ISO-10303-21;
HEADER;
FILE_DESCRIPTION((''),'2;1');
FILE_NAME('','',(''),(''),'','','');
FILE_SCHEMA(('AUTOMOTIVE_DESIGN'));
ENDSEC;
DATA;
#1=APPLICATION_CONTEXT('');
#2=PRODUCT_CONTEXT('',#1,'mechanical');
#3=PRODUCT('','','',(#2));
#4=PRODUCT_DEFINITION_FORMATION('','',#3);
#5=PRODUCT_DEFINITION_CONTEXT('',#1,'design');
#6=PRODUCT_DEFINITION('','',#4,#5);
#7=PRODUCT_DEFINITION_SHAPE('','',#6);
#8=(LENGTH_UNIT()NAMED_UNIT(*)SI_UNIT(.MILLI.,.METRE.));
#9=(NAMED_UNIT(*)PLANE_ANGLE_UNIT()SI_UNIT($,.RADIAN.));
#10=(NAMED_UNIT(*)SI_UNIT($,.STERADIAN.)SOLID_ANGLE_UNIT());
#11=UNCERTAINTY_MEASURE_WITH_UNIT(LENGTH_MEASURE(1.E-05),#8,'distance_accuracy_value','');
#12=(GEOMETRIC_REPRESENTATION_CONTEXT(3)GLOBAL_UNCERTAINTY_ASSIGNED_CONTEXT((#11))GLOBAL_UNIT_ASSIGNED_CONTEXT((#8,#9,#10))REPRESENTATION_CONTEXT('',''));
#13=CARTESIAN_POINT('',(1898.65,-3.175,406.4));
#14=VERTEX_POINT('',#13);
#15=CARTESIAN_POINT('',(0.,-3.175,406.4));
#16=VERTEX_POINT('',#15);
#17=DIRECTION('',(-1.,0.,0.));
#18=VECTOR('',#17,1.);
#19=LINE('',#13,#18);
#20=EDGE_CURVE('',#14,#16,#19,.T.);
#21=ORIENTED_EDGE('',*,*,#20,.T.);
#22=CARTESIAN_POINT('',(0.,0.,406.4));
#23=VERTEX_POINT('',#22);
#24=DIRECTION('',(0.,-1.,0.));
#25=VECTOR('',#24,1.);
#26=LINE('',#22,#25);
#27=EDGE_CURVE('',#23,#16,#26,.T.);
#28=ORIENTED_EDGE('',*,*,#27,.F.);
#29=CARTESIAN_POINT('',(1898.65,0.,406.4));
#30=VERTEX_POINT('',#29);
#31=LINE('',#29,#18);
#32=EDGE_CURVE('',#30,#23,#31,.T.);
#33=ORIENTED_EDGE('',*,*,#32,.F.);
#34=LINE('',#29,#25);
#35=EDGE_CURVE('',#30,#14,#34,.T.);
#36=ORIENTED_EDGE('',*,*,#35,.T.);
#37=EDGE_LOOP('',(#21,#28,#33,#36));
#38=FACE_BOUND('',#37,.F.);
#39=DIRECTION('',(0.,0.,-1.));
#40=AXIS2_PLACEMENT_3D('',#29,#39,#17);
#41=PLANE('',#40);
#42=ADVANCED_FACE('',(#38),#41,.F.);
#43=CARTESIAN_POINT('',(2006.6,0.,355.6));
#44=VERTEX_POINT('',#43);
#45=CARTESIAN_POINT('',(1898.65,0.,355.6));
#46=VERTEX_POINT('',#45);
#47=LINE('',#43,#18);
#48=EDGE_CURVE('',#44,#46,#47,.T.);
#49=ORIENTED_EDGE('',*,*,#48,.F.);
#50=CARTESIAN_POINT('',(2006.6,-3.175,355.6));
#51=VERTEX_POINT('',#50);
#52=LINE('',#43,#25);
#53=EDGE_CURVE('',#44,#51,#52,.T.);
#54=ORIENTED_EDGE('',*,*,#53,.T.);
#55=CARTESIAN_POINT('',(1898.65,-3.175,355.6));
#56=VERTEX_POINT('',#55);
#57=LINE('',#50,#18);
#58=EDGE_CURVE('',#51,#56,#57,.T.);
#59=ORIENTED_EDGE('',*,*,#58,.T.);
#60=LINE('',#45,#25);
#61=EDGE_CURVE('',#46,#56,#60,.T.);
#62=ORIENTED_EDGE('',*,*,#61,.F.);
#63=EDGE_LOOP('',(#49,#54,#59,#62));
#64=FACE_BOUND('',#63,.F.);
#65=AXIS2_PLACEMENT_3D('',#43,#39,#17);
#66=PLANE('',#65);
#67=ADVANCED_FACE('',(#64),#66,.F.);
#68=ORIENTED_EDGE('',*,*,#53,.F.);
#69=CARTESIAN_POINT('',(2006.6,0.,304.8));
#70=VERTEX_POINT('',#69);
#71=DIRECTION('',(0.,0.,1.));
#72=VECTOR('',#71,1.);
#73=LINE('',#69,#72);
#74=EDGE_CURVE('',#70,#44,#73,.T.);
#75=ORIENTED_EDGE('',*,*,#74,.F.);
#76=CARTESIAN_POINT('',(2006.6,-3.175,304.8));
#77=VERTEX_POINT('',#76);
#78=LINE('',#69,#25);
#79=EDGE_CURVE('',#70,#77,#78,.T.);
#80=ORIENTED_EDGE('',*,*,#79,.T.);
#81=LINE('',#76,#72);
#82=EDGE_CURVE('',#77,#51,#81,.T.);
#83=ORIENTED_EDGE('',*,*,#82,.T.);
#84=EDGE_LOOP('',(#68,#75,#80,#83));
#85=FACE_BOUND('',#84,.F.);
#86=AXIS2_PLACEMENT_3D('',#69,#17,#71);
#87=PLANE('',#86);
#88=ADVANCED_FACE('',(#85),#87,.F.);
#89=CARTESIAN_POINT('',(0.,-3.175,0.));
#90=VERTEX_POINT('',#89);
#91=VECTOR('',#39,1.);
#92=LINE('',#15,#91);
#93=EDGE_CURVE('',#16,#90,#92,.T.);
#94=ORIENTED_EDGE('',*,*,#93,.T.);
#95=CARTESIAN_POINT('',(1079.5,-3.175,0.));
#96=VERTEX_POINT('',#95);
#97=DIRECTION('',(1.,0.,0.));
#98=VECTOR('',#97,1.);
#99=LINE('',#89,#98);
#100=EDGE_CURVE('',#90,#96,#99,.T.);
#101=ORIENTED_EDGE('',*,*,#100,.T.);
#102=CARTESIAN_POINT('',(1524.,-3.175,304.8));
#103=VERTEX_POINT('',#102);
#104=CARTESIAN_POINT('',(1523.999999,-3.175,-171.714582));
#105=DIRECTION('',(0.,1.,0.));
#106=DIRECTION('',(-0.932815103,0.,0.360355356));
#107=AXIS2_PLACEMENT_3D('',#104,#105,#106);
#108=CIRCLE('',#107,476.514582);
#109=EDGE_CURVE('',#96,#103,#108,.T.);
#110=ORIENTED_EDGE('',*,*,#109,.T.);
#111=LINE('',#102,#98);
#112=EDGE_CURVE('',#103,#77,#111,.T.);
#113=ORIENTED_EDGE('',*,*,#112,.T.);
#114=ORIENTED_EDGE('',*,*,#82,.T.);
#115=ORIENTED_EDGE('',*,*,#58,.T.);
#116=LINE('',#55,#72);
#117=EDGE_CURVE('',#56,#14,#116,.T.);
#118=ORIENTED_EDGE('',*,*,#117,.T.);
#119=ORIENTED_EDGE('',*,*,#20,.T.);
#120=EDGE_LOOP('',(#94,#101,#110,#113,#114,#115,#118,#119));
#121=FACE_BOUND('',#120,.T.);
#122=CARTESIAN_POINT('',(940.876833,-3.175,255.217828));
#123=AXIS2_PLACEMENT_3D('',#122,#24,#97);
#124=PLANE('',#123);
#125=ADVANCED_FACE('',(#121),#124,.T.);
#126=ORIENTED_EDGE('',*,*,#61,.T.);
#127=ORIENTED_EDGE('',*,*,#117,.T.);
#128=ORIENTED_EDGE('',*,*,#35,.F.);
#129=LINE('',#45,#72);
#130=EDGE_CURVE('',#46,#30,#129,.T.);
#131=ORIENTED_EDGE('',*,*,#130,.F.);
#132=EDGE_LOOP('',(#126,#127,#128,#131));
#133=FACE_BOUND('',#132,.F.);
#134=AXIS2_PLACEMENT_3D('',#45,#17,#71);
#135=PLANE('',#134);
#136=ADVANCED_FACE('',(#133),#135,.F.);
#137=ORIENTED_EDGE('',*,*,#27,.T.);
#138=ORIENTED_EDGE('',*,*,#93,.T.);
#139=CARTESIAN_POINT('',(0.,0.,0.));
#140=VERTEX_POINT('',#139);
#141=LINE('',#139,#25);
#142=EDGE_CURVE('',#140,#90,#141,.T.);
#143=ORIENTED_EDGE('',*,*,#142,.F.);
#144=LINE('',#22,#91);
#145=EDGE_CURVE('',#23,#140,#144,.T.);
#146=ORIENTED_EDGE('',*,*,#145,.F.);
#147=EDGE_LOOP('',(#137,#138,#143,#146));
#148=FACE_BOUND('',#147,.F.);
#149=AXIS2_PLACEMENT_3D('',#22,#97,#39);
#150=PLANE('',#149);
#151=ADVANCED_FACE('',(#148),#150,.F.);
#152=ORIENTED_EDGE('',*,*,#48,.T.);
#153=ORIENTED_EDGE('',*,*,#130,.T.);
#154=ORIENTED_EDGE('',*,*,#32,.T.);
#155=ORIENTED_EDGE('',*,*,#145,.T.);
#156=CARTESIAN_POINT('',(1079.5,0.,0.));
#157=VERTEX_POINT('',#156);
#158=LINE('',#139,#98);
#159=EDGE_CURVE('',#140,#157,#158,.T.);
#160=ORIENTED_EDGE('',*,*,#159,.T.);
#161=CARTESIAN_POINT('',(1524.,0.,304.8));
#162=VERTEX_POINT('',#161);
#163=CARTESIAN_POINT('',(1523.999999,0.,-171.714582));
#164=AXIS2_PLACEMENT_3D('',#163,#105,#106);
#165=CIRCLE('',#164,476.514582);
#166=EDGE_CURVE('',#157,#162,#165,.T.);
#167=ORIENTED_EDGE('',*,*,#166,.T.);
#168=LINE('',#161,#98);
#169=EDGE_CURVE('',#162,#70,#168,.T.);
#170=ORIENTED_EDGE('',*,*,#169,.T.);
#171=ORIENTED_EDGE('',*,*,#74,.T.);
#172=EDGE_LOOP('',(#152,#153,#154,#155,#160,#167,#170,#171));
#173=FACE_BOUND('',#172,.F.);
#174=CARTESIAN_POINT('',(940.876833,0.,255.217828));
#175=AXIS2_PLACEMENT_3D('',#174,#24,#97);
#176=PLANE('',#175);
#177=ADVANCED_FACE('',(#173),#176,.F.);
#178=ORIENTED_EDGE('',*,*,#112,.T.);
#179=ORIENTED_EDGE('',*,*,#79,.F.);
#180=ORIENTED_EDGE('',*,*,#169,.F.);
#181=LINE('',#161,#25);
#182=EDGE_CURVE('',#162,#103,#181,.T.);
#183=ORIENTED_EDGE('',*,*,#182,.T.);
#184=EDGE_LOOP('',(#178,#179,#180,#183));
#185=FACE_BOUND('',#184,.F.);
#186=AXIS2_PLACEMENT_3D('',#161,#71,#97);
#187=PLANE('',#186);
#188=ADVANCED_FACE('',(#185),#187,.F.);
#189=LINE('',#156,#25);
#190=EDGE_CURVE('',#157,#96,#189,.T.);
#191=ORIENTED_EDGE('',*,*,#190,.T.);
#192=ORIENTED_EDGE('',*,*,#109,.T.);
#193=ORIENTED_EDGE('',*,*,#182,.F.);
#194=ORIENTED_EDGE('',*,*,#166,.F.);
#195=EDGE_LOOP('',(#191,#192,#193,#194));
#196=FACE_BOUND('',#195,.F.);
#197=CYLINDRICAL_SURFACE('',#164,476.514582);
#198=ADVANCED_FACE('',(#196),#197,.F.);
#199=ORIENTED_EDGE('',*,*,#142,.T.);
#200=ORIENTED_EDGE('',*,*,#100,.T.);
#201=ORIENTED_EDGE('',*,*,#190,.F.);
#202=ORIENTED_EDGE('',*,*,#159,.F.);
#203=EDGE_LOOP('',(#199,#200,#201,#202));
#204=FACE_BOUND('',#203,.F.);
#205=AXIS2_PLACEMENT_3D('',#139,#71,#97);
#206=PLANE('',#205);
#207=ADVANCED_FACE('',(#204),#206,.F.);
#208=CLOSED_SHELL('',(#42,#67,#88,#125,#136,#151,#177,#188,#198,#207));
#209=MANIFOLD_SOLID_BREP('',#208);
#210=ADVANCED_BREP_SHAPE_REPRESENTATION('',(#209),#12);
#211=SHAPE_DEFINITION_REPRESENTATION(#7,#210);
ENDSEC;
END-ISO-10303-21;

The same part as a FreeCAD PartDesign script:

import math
import FreeCAD as App
import Part
import Sketcher
Q = App.Units.Quantity

doc = App.newDocument("Part")
body = doc.addObject("PartDesign::Body", "Body")

# Sketch on XZ plane
sketch1 = body.newObject("Sketcher::SketchObject", "Sketch")
sketch1.AttachmentSupport = (doc.getObject("XZ_Plane"), [""])
sketch1.MapMode = "FlatFace"
sketch1.addGeometry([
    Part.LineSegment(App.Vector(0, 406, 0), App.Vector(0, 0, 0)),  # 0
    Part.LineSegment(App.Vector(0, 0, 0), App.Vector(1080, 0, 0)),  # 1
    Part.ArcOfCircle(Part.Circle(App.Vector(1524, -172, 0), App.Vector(0, 0, 1), 477), math.radians(90), math.radians(159)),  # 2
    Part.LineSegment(App.Vector(1524, 305, 0), App.Vector(2007, 305, 0)),  # 3
    Part.LineSegment(App.Vector(2007, 305, 0), App.Vector(2007, 356, 0)),  # 4
    Part.LineSegment(App.Vector(2007, 356, 0), App.Vector(1899, 356, 0)),  # 5
    Part.LineSegment(App.Vector(1899, 356, 0), App.Vector(1899, 406, 0)),  # 6
    Part.LineSegment(App.Vector(1899, 406, 0), App.Vector(0, 406, 0)),  # 7
], False)
sketch1.addConstraint([
    Sketcher.Constraint("Coincident", 0, 2, 1, 1),
    Sketcher.Constraint("Coincident", 1, 2, 2, 2),
    Sketcher.Constraint("Tangent", 2, 1, 3, 1),
    Sketcher.Constraint("Coincident", 3, 2, 4, 1),
    Sketcher.Constraint("Coincident", 4, 2, 5, 1),
    Sketcher.Constraint("Coincident", 5, 2, 6, 1),
    Sketcher.Constraint("Coincident", 6, 2, 7, 1),
    Sketcher.Constraint("Coincident", 7, 2, 0, 1),
    Sketcher.Constraint("Vertical", 0),
    Sketcher.Constraint("Horizontal", 1),
    Sketcher.Constraint("Horizontal", 3),
    Sketcher.Constraint("Vertical", 4),
    Sketcher.Constraint("Horizontal", 5),
    Sketcher.Constraint("Vertical", 6),
    Sketcher.Constraint("Horizontal", 7),
    Sketcher.Constraint("Coincident", 0, 2, -1, 1),
    Sketcher.Constraint("Equal", 4, 6),
    Sketcher.Constraint("DistanceX", 3, 1, 3, 2, Q("19 in")),
    Sketcher.Constraint("DistanceY", 0, 2, 0, 1, Q("16 in")),
    Sketcher.Constraint("DistanceY", 4, 1, 4, 2, Q("2 in")),
    Sketcher.Constraint("DistanceX", 1, 1, 1, 2, Q("42.5 in")),
    Sketcher.Constraint("DistanceX", -1, 1, 2, 3, Q("60 in")),
    Sketcher.Constraint("DistanceX", 5, 2, 5, 1, Q("4.25 in")),
])
pad1 = body.newObject("PartDesign::Pad", "Pad")
pad1.Profile = sketch1
pad1.Length = Q("0.125 in")

doc.recompute()
